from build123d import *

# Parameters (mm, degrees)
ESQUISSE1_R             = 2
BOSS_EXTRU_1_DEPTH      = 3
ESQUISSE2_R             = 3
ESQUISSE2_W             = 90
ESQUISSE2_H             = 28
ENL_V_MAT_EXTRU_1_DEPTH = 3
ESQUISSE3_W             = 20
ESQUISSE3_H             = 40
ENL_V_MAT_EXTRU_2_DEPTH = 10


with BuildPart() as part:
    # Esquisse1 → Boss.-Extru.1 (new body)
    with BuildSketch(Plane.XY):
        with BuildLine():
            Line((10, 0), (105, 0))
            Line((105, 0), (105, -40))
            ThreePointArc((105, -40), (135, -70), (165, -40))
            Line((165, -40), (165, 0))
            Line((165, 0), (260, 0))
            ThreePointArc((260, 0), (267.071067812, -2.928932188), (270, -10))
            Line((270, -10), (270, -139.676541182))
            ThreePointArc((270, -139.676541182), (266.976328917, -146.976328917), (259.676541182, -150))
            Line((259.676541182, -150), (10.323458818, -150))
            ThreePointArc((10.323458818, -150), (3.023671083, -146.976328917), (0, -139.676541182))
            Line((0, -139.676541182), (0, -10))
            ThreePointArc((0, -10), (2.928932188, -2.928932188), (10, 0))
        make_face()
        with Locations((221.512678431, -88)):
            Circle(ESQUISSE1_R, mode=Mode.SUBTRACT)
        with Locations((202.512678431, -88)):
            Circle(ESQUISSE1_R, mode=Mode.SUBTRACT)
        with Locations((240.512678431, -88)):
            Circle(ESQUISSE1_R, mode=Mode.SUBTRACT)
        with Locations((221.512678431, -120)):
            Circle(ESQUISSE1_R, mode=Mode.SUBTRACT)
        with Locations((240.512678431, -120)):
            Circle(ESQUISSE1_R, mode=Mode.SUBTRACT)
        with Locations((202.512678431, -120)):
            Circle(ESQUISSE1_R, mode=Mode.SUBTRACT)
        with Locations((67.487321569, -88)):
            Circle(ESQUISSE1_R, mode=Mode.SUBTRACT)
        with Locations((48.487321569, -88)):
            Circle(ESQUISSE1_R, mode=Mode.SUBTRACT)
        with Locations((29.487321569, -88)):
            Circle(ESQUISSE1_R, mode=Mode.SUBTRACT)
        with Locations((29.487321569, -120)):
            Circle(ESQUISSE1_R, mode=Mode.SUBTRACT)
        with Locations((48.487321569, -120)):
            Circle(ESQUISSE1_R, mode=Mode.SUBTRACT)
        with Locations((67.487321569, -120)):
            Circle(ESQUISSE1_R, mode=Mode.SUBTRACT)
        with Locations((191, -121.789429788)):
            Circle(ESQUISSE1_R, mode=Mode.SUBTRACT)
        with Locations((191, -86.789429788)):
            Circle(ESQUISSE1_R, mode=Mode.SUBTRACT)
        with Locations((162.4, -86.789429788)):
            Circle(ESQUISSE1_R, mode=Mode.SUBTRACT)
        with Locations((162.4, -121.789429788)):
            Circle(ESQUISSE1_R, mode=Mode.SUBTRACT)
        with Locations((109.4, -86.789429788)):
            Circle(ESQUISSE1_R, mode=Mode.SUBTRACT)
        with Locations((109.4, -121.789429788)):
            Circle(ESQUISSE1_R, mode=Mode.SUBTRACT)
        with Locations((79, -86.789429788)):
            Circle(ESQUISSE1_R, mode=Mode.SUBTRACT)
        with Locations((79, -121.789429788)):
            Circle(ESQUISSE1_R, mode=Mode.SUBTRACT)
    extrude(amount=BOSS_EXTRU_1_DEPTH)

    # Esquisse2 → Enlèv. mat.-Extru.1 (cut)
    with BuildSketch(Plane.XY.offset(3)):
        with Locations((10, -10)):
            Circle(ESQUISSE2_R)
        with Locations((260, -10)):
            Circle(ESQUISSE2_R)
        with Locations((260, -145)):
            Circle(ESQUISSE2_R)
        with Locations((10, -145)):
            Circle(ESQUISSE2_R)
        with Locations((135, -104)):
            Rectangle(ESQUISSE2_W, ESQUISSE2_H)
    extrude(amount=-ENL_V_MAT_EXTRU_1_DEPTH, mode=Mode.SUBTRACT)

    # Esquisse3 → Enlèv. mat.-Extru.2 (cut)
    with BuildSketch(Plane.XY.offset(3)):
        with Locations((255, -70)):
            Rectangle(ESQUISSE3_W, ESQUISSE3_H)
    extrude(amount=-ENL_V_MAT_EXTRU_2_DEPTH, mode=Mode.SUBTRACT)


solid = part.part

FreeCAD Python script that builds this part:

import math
import FreeCAD as App
import Part
import Sketcher

V = App.Vector
Q = App.Units.Quantity


def add_polygon(sketch, points):
    """Adds a closed chain of lines whose ends are joined by coincident constraints."""
    first, n = sketch.GeometryCount, len(points)
    for a, b in zip(points, points[1:] + points[:1]):
        sketch.addGeometry(Part.LineSegment(App.Vector(*a, 0), App.Vector(*b, 0)), False)
    for i in range(n):
        sketch.addConstraint(Sketcher.Constraint("Coincident", first + i, 2, first + (i + 1) % n, 1))

doc = App.newDocument("Part")
body = doc.addObject("PartDesign::Body", "Body")

sketch1 = body.newObject("Sketcher::SketchObject", "Sketch")
sketch1.AttachmentSupport = (doc.getObject("XY_Plane"), [""])
sketch1.MapMode = "FlatFace"
sketch1.addGeometry(Part.LineSegment(V(105, 0, 0), V(10, 0, 0)), False)
sketch1.addGeometry(Part.ArcOfCircle(Part.Circle(V(10, -10, 0), V(0, 0, 1), 10), math.radians(90), math.radians(180)), False)
sketch1.addGeometry(Part.LineSegment(V(0, -10, 0), V(0, -139.676541, 0)), False)
sketch1.addGeometry(Part.ArcOfCircle(Part.Circle(V(10.323459, -139.676541, 0), V(0, 0, 1), 10.323459), math.radians(-180), math.radians(-90)), False)
sketch1.addGeometry(Part.LineSegment(V(10.323459, -150, 0), V(259.676541, -150, 0)), False)
sketch1.addGeometry(Part.ArcOfCircle(Part.Circle(V(259.676541, -139.676541, 0), V(0, 0, 1), 10.323459), math.radians(-90), math.radians(0)), False)
sketch1.addGeometry(Part.LineSegment(V(270, -139.676541, 0), V(270, -10, 0)), False)
sketch1.addGeometry(Part.ArcOfCircle(Part.Circle(V(260, -10, 0), V(0, 0, 1), 10), math.radians(0), math.radians(90)), False)
sketch1.addGeometry(Part.LineSegment(V(260, 0, 0), V(165, 0, 0)), False)
sketch1.addGeometry(Part.LineSegment(V(165, 0, 0), V(165, -40, 0)), False)
sketch1.addGeometry(Part.ArcOfCircle(Part.Circle(V(135, -40, 0), V(0, 0, 1), 30), math.radians(180), math.radians(360)), False)
sketch1.addGeometry(Part.LineSegment(V(105, -40, 0), V(105, 0, 0)), False)
sketch1.addGeometry(Part.Circle(V(240.512678, -120, 0), V(0, 0, 1), 2), False)
sketch1.addGeometry(Part.Circle(V(221.512678, -120, 0), V(0, 0, 1), 2), False)
sketch1.addGeometry(Part.Circle(V(191, -121.78943, 0), V(0, 0, 1), 2), False)
sketch1.addGeometry(Part.Circle(V(202.512678, -120, 0), V(0, 0, 1), 2), False)
sketch1.addGeometry(Part.Circle(V(162.4, -121.78943, 0), V(0, 0, 1), 2), False)
sketch1.addGeometry(Part.Circle(V(109.4, -121.78943, 0), V(0, 0, 1), 2), False)
sketch1.addGeometry(Part.Circle(V(79, -121.78943, 0), V(0, 0, 1), 2), False)
sketch1.addGeometry(Part.Circle(V(67.487322, -120, 0), V(0, 0, 1), 2), False)
sketch1.addGeometry(Part.Circle(V(48.487322, -120, 0), V(0, 0, 1), 2), False)
sketch1.addGeometry(Part.Circle(V(29.487322, -120, 0), V(0, 0, 1), 2), False)
sketch1.addGeometry(Part.Circle(V(240.512678, -88, 0), V(0, 0, 1), 2), False)
sketch1.addGeometry(Part.Circle(V(221.512678, -88, 0), V(0, 0, 1), 2), False)
sketch1.addGeometry(Part.Circle(V(202.512678, -88, 0), V(0, 0, 1), 2), False)
sketch1.addGeometry(Part.Circle(V(191, -86.78943, 0), V(0, 0, 1), 2), False)
sketch1.addGeometry(Part.Circle(V(162.4, -86.78943, 0), V(0, 0, 1), 2), False)
sketch1.addGeometry(Part.Circle(V(109.4, -86.78943, 0), V(0, 0, 1), 2), False)
sketch1.addGeometry(Part.Circle(V(67.487322, -88, 0), V(0, 0, 1), 2), False)
sketch1.addGeometry(Part.Circle(V(79, -86.78943, 0), V(0, 0, 1), 2), False)
sketch1.addGeometry(Part.Circle(V(48.487322, -88, 0), V(0, 0, 1), 2), False)
sketch1.addGeometry(Part.Circle(V(29.487322, -88, 0), V(0, 0, 1), 2), False)
sketch1.addConstraint(Sketcher.Constraint("Tangent", 0, 2, 1, 1))
sketch1.addConstraint(Sketcher.Constraint("Tangent", 1, 2, 2, 1))
sketch1.addConstraint(Sketcher.Constraint("Tangent", 2, 2, 3, 1))
sketch1.addConstraint(Sketcher.Constraint("Tangent", 3, 2, 4, 1))
sketch1.addConstraint(Sketcher.Constraint("Tangent", 4, 2, 5, 1))
sketch1.addConstraint(Sketcher.Constraint("Tangent", 5, 2, 6, 1))
sketch1.addConstraint(Sketcher.Constraint("Tangent", 6, 2, 7, 1))
sketch1.addConstraint(Sketcher.Constraint("Tangent", 7, 2, 8, 1))
sketch1.addConstraint(Sketcher.Constraint("Coincident", 8, 2, 9, 1))
sketch1.addConstraint(Sketcher.Constraint("Tangent", 9, 2, 10, 2))
sketch1.addConstraint(Sketcher.Constraint("Tangent", 10, 1, 11, 1))
sketch1.addConstraint(Sketcher.Constraint("Coincident", 11, 2, 0, 1))
sketch1.addConstraint(Sketcher.Constraint("Horizontal", 0))
sketch1.addConstraint(Sketcher.Constraint("Vertical", 2))
sketch1.addConstraint(Sketcher.Constraint("Horizontal", 4))
sketch1.addConstraint(Sketcher.Constraint("Vertical", 6))
sketch1.addConstraint(Sketcher.Constraint("Horizontal", 8))
sketch1.addConstraint(Sketcher.Constraint("Vertical", 9))
sketch1.addConstraint(Sketcher.Constraint("Vertical", 11))
sketch1.addConstraint(Sketcher.Constraint("Equal", 3, 5))
sketch1.addConstraint(Sketcher.Constraint("Equal", 1, 7))
sketch1.addConstraint(Sketcher.Constraint("Equal", 12, 13))
sketch1.addConstraint(Sketcher.Constraint("Equal", 13, 14))
sketch1.addConstraint(Sketcher.Constraint("Equal", 14, 15))
sketch1.addConstraint(Sketcher.Constraint("Equal", 15, 16))
sketch1.addConstraint(Sketcher.Constraint("Equal", 16, 17))
sketch1.addConstraint(Sketcher.Constraint("Equal", 17, 18))
sketch1.addConstraint(Sketcher.Constraint("Equal", 18, 19))
sketch1.addConstraint(Sketcher.Constraint("Equal", 19, 20))
sketch1.addConstraint(Sketcher.Constraint("Equal", 20, 21))
sketch1.addConstraint(Sketcher.Constraint("Equal", 21, 22))
sketch1.addConstraint(Sketcher.Constraint("Equal", 22, 23))
sketch1.addConstraint(Sketcher.Constraint("Equal", 23, 24))
sketch1.addConstraint(Sketcher.Constraint("Equal", 24, 25))
sketch1.addConstraint(Sketcher.Constraint("Equal", 25, 26))
sketch1.addConstraint(Sketcher.Constraint("Equal", 26, 27))
sketch1.addConstraint(Sketcher.Constraint("Equal", 27, 28))
sketch1.addConstraint(Sketcher.Constraint("Equal", 28, 29))
sketch1.addConstraint(Sketcher.Constraint("Equal", 29, 30))
sketch1.addConstraint(Sketcher.Constraint("Equal", 30, 31))
sketch1.addConstraint(Sketcher.Constraint("PointOnObject", 0, 2, -1))
sketch1.addConstraint(Sketcher.Constraint("PointOnObject", 1, 2, -2))
sketch1.addConstraint(Sketcher.Constraint("PointOnObject", 7, 2, -1))
sketch1.addConstraint(Sketcher.Constraint("Horizontal", 12, 3, 13, 3))
sketch1.addConstraint(Sketcher.Constraint("Horizontal", 13, 3, 15, 3))
sketch1.addConstraint(Sketcher.Constraint("Horizontal", 14, 3, 16, 3))
sketch1.addConstraint(Sketcher.Constraint("Horizontal", 16, 3, 17, 3))
sketch1.addConstraint(Sketcher.Constraint("Horizontal", 17, 3, 18, 3))
sketch1.addConstraint(Sketcher.Constraint("Horizontal", 15, 3, 19, 3))
sketch1.addConstraint(Sketcher.Constraint("Horizontal", 19, 3, 20, 3))
sketch1.addConstraint(Sketcher.Constraint("Horizontal", 20, 3, 21, 3))
sketch1.addConstraint(Sketcher.Constraint("Horizontal", 22, 3, 23, 3))
sketch1.addConstraint(Sketcher.Constraint("Horizontal", 23, 3, 24, 3))
sketch1.addConstraint(Sketcher.Constraint("Horizontal", 25, 3, 26, 3))
sketch1.addConstraint(Sketcher.Constraint("Horizontal", 26, 3, 27, 3))
sketch1.addConstraint(Sketcher.Constraint("Horizontal", 24, 3, 28, 3))
sketch1.addConstraint(Sketcher.Constraint("Horizontal", 27, 3, 29, 3))
sketch1.addConstraint(Sketcher.Constraint("Horizontal", 28, 3, 30, 3))
sketch1.addConstraint(Sketcher.Constraint("Horizontal", 30, 3, 31, 3))
sketch1.addConstraint(Sketcher.Constraint("Vertical", 12, 3, 22, 3))
sketch1.addConstraint(Sketcher.Constraint("Vertical", 13, 3, 23, 3))
sketch1.addConstraint(Sketcher.Constraint("Vertical", 15, 3, 24, 3))
sketch1.addConstraint(Sketcher.Constraint("Vertical", 14, 3, 25, 3))
sketch1.addConstraint(Sketcher.Constraint("Vertical", 16, 3, 26, 3))
sketch1.addConstraint(Sketcher.Constraint("Vertical", 17, 3, 27, 3))
sketch1.addConstraint(Sketcher.Constraint("Vertical", 19, 3, 28, 3))
sketch1.addConstraint(Sketcher.Constraint("Vertical", 18, 3, 29, 3))
sketch1.addConstraint(Sketcher.Constraint("Vertical", 20, 3, 30, 3))
sketch1.addConstraint(Sketcher.Constraint("Vertical", 21, 3, 31, 3))
sketch1.addConstraint(Sketcher.Constraint("Equal", 0, 8))
sketch1.addConstraint(Sketcher.Constraint("Diameter", 12, Q("4 mm")))
sketch1.addConstraint(Sketcher.Constraint("Radius", 1, Q("10 mm")))
sketch1.addConstraint(Sketcher.Constraint("Radius", 10, Q("30 mm")))
sketch1.addConstraint(Sketcher.Constraint("DistanceX", 0, 2, 0, 1, Q("95 mm")))
sketch1.addConstraint(Sketcher.Constraint("DistanceY", 9, 2, 9, 1, Q("40 mm")))
sketch1.addConstraint(Sketcher.Constraint("DistanceY", 12, 3, -1, 1, Q("120 mm")))
sketch1.addConstraint(Sketcher.Constraint("DistanceX", -1, 1, 14, 3, Q("191 mm")))
sketch1.addConstraint(Sketcher.Constraint("DistanceX", -1, 1, 18, 3, Q("79 mm")))
sketch1.addConstraint(Sketcher.Constraint("DistanceY", 22, 3, -1, 1, Q("88 mm")))
sketch1.addConstraint(Sketcher.Constraint("DistanceY", 3, 2, -1, 1, Q("150 mm")))
sketch1.addConstraint(Sketcher.Constraint("DistanceX", 13, 3, 12, 3, Q("19 mm")))
sketch1.addConstraint(Sketcher.Constraint("DistanceX", 15, 3, 13, 3, Q("19 mm")))
sketch1.addConstraint(Sketcher.Constraint("DistanceX", 17, 3, 16, 3, Q("53 mm")))
sketch1.addConstraint(Sketcher.Constraint("DistanceX", 20, 3, 19, 3, Q("19 mm")))
sketch1.addConstraint(Sketcher.Constraint("DistanceX", 21, 3, 20, 3, Q("19 mm")))
sketch1.addConstraint(Sketcher.Constraint("DistanceY", 14, 3, 25, 3, Q("35 mm")))
sketch1.addConstraint(Sketcher.Constraint("DistanceX", -1, 1, 16, 3, Q("162.4 mm")))
sketch1.addConstraint(Sketcher.Constraint("Radius", 3, Q("10.323459 mm")))
sketch1.addConstraint(Sketcher.Constraint("DistanceX", -1, 1, 12, 3, Q("240.512678 mm")))
sketch1.addConstraint(Sketcher.Constraint("DistanceY", 14, 3, -1, 1, Q("121.78943 mm")))
sketch1.addConstraint(Sketcher.Constraint("DistanceX", -1, 1, 19, 3, Q("67.487322 mm")))
pad1 = body.newObject("PartDesign::Pad", "Pad")
pad1.Profile = sketch1
pad1.Length = 3

sketch2 = body.newObject("Sketcher::SketchObject", "Sketch001")
sketch2.AttachmentSupport = (doc.getObject("XY_Plane"), [""])
sketch2.MapMode = "FlatFace"
sketch2.AttachmentOffset = App.Placement(V(0, 0, 3), App.Rotation())
sketch2.addGeometry(Part.Circle(V(10, -10, 0), V(0, 0, 1), 3), False)
sketch2.addGeometry(Part.Circle(V(260, -10, 0), V(0, 0, 1), 3), False)
sketch2.addGeometry(Part.Circle(V(260, -145, 0), V(0, 0, 1), 3), False)
sketch2.addGeometry(Part.Circle(V(10, -145, 0), V(0, 0, 1), 3), False)
add_polygon(sketch2, [(90, -90), (90, -118), (180, -118), (180, -90)])
sketch2.addConstraint(Sketcher.Constraint("Vertical", 4))
sketch2.addConstraint(Sketcher.Constraint("Horizontal", 5))
sketch2.addConstraint(Sketcher.Constraint("Vertical", 6))
sketch2.addConstraint(Sketcher.Constraint("Horizontal", 7))
sketch2.addConstraint(Sketcher.Constraint("Equal", 0, 1))
sketch2.addConstraint(Sketcher.Constraint("Equal", 1, 2))
sketch2.addConstraint(Sketcher.Constraint("Equal", 2, 3))
sketch2.addConstraint(Sketcher.Constraint("Horizontal", 0, 3, 1, 3))
sketch2.addConstraint(Sketcher.Constraint("Horizontal", 2, 3, 3, 3))
sketch2.addConstraint(Sketcher.Constraint("Vertical", 1, 3, 2, 3))
sketch2.addConstraint(Sketcher.Constraint("Vertical", 0, 3, 3, 3))
sketch2.addConstraint(Sketcher.Constraint("Diameter", 0, Q("6 mm")))
sketch2.addConstraint(Sketcher.Constraint("DistanceX", 5, 1, 5, 2, Q("90 mm")))
sketch2.addConstraint(Sketcher.Constraint("DistanceY", 4, 2, 4, 1, Q("28 mm")))
sketch2.addConstraint(Sketcher.Constraint("DistanceX", -1, 1, 0, 3, Q("10 mm")))
sketch2.addConstraint(Sketcher.Constraint("DistanceY", 0, 3, -1, 1, Q("10 mm")))
sketch2.addConstraint(Sketcher.Constraint("DistanceX", -1, 1, 1, 3, Q("260 mm")))
sketch2.addConstraint(Sketcher.Constraint("DistanceY", 2, 3, -1, 1, Q("145 mm")))
sketch2.addConstraint(Sketcher.Constraint("DistanceX", -1, 1, 4, 2, Q("90 mm")))
sketch2.addConstraint(Sketcher.Constraint("DistanceY", 4, 2, -1, 1, Q("118 mm")))
pocket1 = body.newObject("PartDesign::Pocket", "Pocket")
pocket1.Profile = sketch2
pocket1.Length = 3

sketch3 = body.newObject("Sketcher::SketchObject", "Sketch002")
sketch3.AttachmentSupport = (doc.getObject("XY_Plane"), [""])
sketch3.MapMode = "FlatFace"
sketch3.AttachmentOffset = App.Placement(V(0, 0, 3), App.Rotation())
add_polygon(sketch3, [(245, -50), (245, -90), (265, -90), (265, -50)])
sketch3.addConstraint(Sketcher.Constraint("Vertical", 0))
sketch3.addConstraint(Sketcher.Constraint("Horizontal", 1))
sketch3.addConstraint(Sketcher.Constraint("Vertical", 2))
sketch3.addConstraint(Sketcher.Constraint("Horizontal", 3))
sketch3.addConstraint(Sketcher.Constraint("DistanceX", 1, 1, 1, 2, Q("20 mm")))
sketch3.addConstraint(Sketcher.Constraint("DistanceY", 0, 2, 0, 1, Q("40 mm")))
sketch3.addConstraint(Sketcher.Constraint("DistanceX", -1, 1, 0, 2, Q("245 mm")))
sketch3.addConstraint(Sketcher.Constraint("DistanceY", 0, 2, -1, 1, Q("90 mm")))
pocket2 = body.newObject("PartDesign::Pocket", "Pocket001")
pocket2.Profile = sketch3
pocket2.Length = 10

doc.recompute()
